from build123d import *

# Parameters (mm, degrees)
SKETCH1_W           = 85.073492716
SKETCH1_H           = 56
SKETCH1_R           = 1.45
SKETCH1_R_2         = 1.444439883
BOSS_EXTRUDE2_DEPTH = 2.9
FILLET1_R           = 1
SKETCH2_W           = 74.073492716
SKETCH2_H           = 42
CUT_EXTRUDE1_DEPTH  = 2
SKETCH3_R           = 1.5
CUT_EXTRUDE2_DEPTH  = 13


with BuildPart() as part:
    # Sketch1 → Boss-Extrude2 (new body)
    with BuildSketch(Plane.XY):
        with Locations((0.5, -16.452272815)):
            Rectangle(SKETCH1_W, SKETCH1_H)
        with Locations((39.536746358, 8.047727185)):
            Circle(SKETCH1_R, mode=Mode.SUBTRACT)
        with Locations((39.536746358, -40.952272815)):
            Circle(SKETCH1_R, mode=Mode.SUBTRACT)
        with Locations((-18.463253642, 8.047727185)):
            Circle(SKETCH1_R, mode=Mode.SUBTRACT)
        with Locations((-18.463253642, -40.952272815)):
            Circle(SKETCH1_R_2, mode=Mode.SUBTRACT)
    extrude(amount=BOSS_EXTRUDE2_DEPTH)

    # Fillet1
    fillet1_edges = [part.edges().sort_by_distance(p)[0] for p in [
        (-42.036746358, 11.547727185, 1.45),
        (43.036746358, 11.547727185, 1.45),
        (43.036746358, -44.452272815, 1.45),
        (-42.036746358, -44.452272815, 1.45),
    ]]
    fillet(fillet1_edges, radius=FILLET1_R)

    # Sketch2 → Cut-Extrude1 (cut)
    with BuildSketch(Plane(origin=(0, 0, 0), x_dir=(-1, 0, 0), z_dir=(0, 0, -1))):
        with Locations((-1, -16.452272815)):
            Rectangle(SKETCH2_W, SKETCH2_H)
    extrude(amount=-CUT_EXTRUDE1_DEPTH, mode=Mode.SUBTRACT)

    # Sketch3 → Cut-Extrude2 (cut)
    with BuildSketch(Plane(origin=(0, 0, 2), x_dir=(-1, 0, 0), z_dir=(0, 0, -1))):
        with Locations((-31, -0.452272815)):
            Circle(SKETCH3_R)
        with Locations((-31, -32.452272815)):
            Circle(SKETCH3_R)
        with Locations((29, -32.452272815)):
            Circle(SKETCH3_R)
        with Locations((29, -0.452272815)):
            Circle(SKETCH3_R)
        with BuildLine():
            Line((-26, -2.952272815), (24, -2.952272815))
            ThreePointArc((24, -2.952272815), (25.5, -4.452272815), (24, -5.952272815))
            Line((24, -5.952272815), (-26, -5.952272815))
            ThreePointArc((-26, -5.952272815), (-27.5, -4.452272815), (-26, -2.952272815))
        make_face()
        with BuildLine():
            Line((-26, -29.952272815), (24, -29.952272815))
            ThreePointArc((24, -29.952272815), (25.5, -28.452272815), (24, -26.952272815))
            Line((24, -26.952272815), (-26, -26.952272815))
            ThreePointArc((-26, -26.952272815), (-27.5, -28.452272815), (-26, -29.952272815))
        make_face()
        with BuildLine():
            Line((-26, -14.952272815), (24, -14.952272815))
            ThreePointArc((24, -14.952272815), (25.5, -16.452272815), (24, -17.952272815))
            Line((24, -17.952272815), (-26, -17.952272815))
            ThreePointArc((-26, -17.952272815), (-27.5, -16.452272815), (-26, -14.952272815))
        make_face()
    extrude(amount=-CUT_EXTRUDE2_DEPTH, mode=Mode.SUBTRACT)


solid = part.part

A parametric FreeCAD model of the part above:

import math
import FreeCAD as App
import Part
import Sketcher
from FreeCAD import Vector
Q = App.Units.Quantity


def edges_at(feature, points):
    """Names of the edges that pass closest to the given points."""
    edges = feature.Shape.Edges
    near = lambda p: min(range(len(edges)), key=lambda i: edges[i].distToShape(Part.Vertex(*p))[0])
    return sorted({f"Edge{near(p) + 1}" for p in points})


def add_polygon(sketch, points):
    """Adds a closed chain of lines whose ends are joined by coincident constraints."""
    first, n = sketch.GeometryCount, len(points)
    for a, b in zip(points, points[1:] + points[:1]):
        sketch.addGeometry(Part.LineSegment(App.Vector(*a, 0), App.Vector(*b, 0)), False)
    for i in range(n):
        sketch.addConstraint(Sketcher.Constraint("Coincident", first + i, 2, first + (i + 1) % n, 1))

doc = App.newDocument("Part")
body = doc.addObject("PartDesign::Body", "Body")

sketch1 = body.newObject("Sketcher::SketchObject", "Sketch")
sketch1.AttachmentSupport = (doc.getObject("XY_Plane"), [""])
sketch1.MapMode = "FlatFace"
add_polygon(sketch1, [(-42, 11.5), (-42, -44.5), (43, -44.5), (43, 11.5)])
sketch1.addGeometry(Part.Circle(Vector(-18.5, -41, 0), Vector(0, 0, 1), 1.4), False)
sketch1.addGeometry(Part.Circle(Vector(39.5, -41, 0), Vector(0, 0, 1), 1.4), False)
sketch1.addGeometry(Part.Circle(Vector(-18.5, 8, 0), Vector(0, 0, 1), 1.4), False)
sketch1.addGeometry(Part.Circle(Vector(39.5, 8, 0), Vector(0, 0, 1), 1.4), False)
sketch1.addConstraint([
    Sketcher.Constraint("Vertical", 0),
    Sketcher.Constraint("Horizontal", 1),
    Sketcher.Constraint("Vertical", 2),
    Sketcher.Constraint("Horizontal", 3),
    Sketcher.Constraint("Equal", 5, 6),
    Sketcher.Constraint("Equal", 6, 7),
    Sketcher.Constraint("Horizontal", 4, 3, 5, 3),
    Sketcher.Constraint("Horizontal", 6, 3, 7, 3),
    Sketcher.Constraint("Vertical", 4, 3, 6, 3),
    Sketcher.Constraint("Vertical", 5, 3, 7, 3),
    Sketcher.Constraint("Diameter", 5, Q("2.9 mm")),
    Sketcher.Constraint("DistanceY", 0, 2, 0, 1, Q("56 mm")),
    Sketcher.Constraint("DistanceX", 4, 3, 5, 3, Q("58 mm")),
    Sketcher.Constraint("DistanceY", 4, 3, 6, 3, Q("49 mm")),
    Sketcher.Constraint("DistanceY", 0, 2, 4, 3, Q("3.5 mm")),
    Sketcher.Constraint("DistanceX", 5, 3, 1, 2, Q("3.5 mm")),
    Sketcher.Constraint("Diameter", 4, Q("2.88888 mm")),
    Sketcher.Constraint("DistanceX", 1, 1, 1, 2, Q("85.073493 mm")),
    Sketcher.Constraint("DistanceX", 4, 3, -1, 1, Q("18.463254 mm")),
    Sketcher.Constraint("DistanceY", 4, 3, -1, 1, Q("40.952273 mm")),
])
pad1 = body.newObject("PartDesign::Pad", "Pad")
pad1.Profile = sketch1
pad1.Length = 2.9
doc.recompute()

fillet = body.newObject("PartDesign::Fillet", "Fillet")
fillet.Base = (pad1, edges_at(pad1, [
    (-42.037, 11.548, 1.45),
    (43.037, 11.548, 1.45),
    (43.037, -44.452, 1.45),
    (-42.037, -44.452, 1.45),
]))
fillet.Radius = 1

sketch2 = body.newObject("Sketcher::SketchObject", "Sketch001")
sketch2.AttachmentSupport = (doc.getObject("XY_Plane"), [""])
sketch2.MapMode = "FlatFace"
add_polygon(sketch2, [(38, 5), (38, -37), (-36, -37), (-36, 5)])
sketch2.addConstraint([
    Sketcher.Constraint("Vertical", 0),
    Sketcher.Constraint("Horizontal", 1),
    Sketcher.Constraint("Vertical", 2),
    Sketcher.Constraint("Horizontal", 3),
    Sketcher.Constraint("DistanceY", 0, 2, 0, 1, Q("42 mm")),
    Sketcher.Constraint("DistanceX", 1, 2, 1, 1, Q("74.073493 mm")),
    Sketcher.Constraint("DistanceX", -1, 1, 0, 2, Q("38.036746 mm")),
    Sketcher.Constraint("DistanceY", 0, 2, -1, 1, Q("37.452273 mm")),
])
pocket1 = body.newObject("PartDesign::Pocket", "Pocket")
pocket1.Profile = sketch2
pocket1.Length = 2
pocket1.Reversed = True

sketch3 = body.newObject("Sketcher::SketchObject", "Sketch002")
sketch3.AttachmentSupport = (doc.getObject("XY_Plane"), [""])
sketch3.MapMode = "FlatFace"
sketch3.AttachmentOffset = App.Placement(Vector(0, 0, 2), App.Rotation())
sketch3.addGeometry([
    Part.Circle(Vector(31, -0.5, 0), Vector(0, 0, 1), 1.5),
    Part.Circle(Vector(31, -32.5, 0), Vector(0, 0, 1), 1.5),
    Part.Circle(Vector(-29, -32.5, 0), Vector(0, 0, 1), 1.5),
    Part.Circle(Vector(-29, -0.5, 0), Vector(0, 0, 1), 1.5),
    Part.LineSegment(Vector(-24, -3, 0), Vector(26, -3, 0)),
    Part.ArcOfCircle(Part.Circle(Vector(26, -4.5, 0), Vector(0, 0, 1), 1.5), math.radians(-90), math.radians(90)),
    Part.LineSegment(Vector(26, -6, 0), Vector(-24, -6, 0)),
    Part.ArcOfCircle(Part.Circle(Vector(-24, -4.5, 0), Vector(0, 0, 1), 1.5), math.radians(90), math.radians(270)),
    Part.LineSegment(Vector(26, -30, 0), Vector(-24, -30, 0)),
    Part.ArcOfCircle(Part.Circle(Vector(-24, -28.5, 0), Vector(0, 0, 1), 1.5), math.radians(90), math.radians(270)),
    Part.LineSegment(Vector(-24, -27, 0), Vector(26, -27, 0)),
    Part.ArcOfCircle(Part.Circle(Vector(26, -28.5, 0), Vector(0, 0, 1), 1.5), math.radians(-90), math.radians(90)),
    Part.LineSegment(Vector(-24, -15, 0), Vector(26, -15, 0)),
    Part.ArcOfCircle(Part.Circle(Vector(26, -16.5, 0), Vector(0, 0, 1), 1.5), math.radians(-90), math.radians(90)),
    Part.LineSegment(Vector(26, -18, 0), Vector(-24, -18, 0)),
    Part.ArcOfCircle(Part.Circle(Vector(-24, -16.5, 0), Vector(0, 0, 1), 1.5), math.radians(90), math.radians(270)),
], False)
sketch3.addConstraint([
    Sketcher.Constraint("Tangent", 4, 2, 5, 2),
    Sketcher.Constraint("Tangent", 5, 1, 6, 1),
    Sketcher.Constraint("Tangent", 6, 2, 7, 2),
    Sketcher.Constraint("Tangent", 7, 1, 4, 1),
    Sketcher.Constraint("Tangent", 8, 2, 9, 2),
    Sketcher.Constraint("Tangent", 9, 1, 10, 1),
    Sketcher.Constraint("Tangent", 10, 2, 11, 2),
    Sketcher.Constraint("Tangent", 11, 1, 8, 1),
    Sketcher.Constraint("Tangent", 12, 2, 13, 2),
    Sketcher.Constraint("Tangent", 13, 1, 14, 1),
    Sketcher.Constraint("Tangent", 14, 2, 15, 2),
    Sketcher.Constraint("Tangent", 15, 1, 12, 1),
    Sketcher.Constraint("Horizontal", 4),
    Sketcher.Constraint("Horizontal", 6),
    Sketcher.Constraint("Horizontal", 8),
    Sketcher.Constraint("Horizontal", 10),
    Sketcher.Constraint("Horizontal", 12),
    Sketcher.Constraint("Horizontal", 14),
    Sketcher.Constraint("Equal", 0, 1),
    Sketcher.Constraint("Equal", 1, 2),
    Sketcher.Constraint("Equal", 2, 3),
    Sketcher.Constraint("Equal", 3, 5),
    Sketcher.Constraint("Equal", 7, 9),
    Sketcher.Constraint("Equal", 11, 13),
    Sketcher.Constraint("Horizontal", 1, 3, 2, 3),
    Sketcher.Constraint("Horizontal", 0, 3, 3, 3),
    Sketcher.Constraint("Vertical", 0, 3, 1, 3),
    Sketcher.Constraint("Vertical", 2, 3, 3, 3),
    Sketcher.Constraint("Vertical", 7, 3, 9, 3),
    Sketcher.Constraint("Vertical", 5, 3, 11, 3),
    Sketcher.Constraint("Vertical", 11, 3, 13, 3),
    Sketcher.Constraint("Vertical", 9, 3, 15, 3),
    Sketcher.Constraint("Diameter", 0, Q("3 mm")),
    Sketcher.Constraint("DistanceX", 4, 1, 4, 2, Q("50 mm")),
    Sketcher.Constraint("DistanceX", -1, 1, 0, 3, Q("31 mm")),
    Sketcher.Constraint("DistanceX", 2, 3, -1, 1, Q("29 mm")),
    Sketcher.Constraint("DistanceX", -1, 1, 5, 3, Q("26 mm")),
    Sketcher.Constraint("DistanceY", 1, 3, 0, 3, Q("32 mm")),
    Sketcher.Constraint("DistanceY", 5, 3, 0, 3, Q("4 mm")),
    Sketcher.Constraint("DistanceY", 2, 3, 9, 3, Q("4 mm")),
    Sketcher.Constraint("DistanceY", 13, 3, 5, 3, Q("12 mm")),
    Sketcher.Constraint("DistanceY", 0, 3, -1, 1, Q("0.452273 mm")),
])
pocket2 = body.newObject("PartDesign::Pocket", "Pocket001")
pocket2.Profile = sketch3
pocket2.Length = 13
pocket2.Reversed = True

doc.recompute()
